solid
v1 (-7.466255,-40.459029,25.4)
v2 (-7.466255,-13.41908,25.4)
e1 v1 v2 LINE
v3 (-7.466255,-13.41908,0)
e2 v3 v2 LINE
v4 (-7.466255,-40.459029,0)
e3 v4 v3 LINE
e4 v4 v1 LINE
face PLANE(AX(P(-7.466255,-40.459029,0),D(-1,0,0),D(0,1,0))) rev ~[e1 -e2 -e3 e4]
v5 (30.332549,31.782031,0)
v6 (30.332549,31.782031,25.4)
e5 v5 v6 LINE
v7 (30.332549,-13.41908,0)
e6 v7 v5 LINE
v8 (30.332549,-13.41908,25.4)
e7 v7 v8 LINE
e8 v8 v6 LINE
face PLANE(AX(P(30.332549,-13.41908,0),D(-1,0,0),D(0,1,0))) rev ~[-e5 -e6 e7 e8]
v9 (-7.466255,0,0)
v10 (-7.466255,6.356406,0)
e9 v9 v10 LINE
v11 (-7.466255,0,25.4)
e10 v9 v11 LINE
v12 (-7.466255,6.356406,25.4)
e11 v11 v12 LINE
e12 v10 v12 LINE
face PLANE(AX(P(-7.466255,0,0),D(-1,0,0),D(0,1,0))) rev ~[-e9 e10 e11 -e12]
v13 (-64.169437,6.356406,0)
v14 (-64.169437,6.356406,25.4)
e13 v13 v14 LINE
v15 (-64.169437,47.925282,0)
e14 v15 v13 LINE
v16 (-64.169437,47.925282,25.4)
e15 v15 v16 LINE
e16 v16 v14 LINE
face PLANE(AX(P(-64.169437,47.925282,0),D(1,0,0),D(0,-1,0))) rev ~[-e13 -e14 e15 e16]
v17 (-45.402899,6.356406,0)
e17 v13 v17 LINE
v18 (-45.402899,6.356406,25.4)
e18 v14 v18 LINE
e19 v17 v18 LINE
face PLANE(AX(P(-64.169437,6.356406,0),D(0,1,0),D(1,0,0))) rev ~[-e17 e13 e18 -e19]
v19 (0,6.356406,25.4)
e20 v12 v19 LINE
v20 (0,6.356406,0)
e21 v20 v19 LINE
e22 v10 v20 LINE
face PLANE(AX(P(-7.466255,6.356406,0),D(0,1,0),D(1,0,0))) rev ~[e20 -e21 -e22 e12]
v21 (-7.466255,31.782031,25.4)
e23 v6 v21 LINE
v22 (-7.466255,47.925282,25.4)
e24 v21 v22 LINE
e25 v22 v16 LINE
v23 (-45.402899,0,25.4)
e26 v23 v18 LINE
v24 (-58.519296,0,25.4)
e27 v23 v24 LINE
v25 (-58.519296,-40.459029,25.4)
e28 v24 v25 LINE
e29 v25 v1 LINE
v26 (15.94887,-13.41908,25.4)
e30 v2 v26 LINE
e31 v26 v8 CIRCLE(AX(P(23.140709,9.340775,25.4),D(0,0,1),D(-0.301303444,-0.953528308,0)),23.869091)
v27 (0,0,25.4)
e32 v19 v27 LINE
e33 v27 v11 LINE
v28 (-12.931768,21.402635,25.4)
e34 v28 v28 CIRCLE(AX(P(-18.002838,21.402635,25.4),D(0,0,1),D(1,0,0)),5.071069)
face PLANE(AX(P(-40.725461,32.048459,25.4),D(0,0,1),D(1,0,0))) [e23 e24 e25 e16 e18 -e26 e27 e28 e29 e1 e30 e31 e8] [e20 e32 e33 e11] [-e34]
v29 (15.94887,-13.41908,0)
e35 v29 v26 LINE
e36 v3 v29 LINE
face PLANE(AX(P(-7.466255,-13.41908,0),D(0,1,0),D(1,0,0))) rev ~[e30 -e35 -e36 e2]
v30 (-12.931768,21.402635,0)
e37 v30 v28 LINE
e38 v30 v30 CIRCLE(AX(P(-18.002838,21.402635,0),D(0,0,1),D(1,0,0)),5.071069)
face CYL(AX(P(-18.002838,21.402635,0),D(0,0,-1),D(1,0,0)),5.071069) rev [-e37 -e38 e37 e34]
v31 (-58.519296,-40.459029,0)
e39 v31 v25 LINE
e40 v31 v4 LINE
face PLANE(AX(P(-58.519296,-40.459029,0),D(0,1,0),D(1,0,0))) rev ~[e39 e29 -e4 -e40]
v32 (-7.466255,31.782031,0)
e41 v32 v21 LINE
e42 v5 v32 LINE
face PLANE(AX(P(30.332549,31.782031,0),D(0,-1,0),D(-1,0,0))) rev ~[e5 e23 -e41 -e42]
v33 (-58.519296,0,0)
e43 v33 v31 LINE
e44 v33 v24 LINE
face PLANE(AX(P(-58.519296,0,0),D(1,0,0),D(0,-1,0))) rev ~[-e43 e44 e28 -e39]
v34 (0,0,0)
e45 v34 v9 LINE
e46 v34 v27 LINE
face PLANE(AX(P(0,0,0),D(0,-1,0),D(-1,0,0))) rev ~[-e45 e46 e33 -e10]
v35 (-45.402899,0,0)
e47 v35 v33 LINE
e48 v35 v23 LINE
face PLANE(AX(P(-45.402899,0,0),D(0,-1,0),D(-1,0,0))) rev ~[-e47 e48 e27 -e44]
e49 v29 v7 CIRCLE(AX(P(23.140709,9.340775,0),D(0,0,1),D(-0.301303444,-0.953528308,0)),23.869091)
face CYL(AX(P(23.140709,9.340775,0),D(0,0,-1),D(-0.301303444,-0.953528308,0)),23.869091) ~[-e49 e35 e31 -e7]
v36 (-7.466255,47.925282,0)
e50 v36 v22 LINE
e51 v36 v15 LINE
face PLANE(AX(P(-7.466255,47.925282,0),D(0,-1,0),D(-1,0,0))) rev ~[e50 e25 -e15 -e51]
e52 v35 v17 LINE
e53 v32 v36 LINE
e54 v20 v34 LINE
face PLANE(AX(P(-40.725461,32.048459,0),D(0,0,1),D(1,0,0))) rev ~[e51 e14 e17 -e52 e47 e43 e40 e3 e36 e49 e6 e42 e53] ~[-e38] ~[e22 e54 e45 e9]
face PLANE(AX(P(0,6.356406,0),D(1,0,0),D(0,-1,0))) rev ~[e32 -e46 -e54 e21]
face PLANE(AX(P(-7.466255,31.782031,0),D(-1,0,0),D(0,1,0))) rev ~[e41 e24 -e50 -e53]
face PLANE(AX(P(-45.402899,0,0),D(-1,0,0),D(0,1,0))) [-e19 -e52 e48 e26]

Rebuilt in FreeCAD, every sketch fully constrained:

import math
import FreeCAD as App
import Part
import Sketcher
Q = App.Units.Quantity

doc = App.newDocument("Part")
body = doc.addObject("PartDesign::Body", "Body")

sketch1 = doc.addObject("Sketcher::SketchObject", "Sketch")
body.addObject(sketch1)
sketch1.AttachmentSupport = (doc.XY_Plane, [""])
sketch1.MapMode = "FlatFace"
sketch1.addGeometry(Part.LineSegment(App.Vector(-7, 48, 0), App.Vector(-64, 48, 0)), False)
sketch1.addGeometry(Part.LineSegment(App.Vector(-64, 48, 0), App.Vector(-64, 6, 0)), False)
sketch1.addGeometry(Part.LineSegment(App.Vector(-64, 6, 0), App.Vector(-45, 6, 0)), False)
sketch1.addGeometry(Part.LineSegment(App.Vector(-45, 6, 0), App.Vector(-45, 0, 0)), False)
sketch1.addGeometry(Part.LineSegment(App.Vector(-45, 0, 0), App.Vector(-59, 0, 0)), False)
sketch1.addGeometry(Part.LineSegment(App.Vector(-59, 0, 0), App.Vector(-59, -40, 0)), False)
sketch1.addGeometry(Part.LineSegment(App.Vector(-59, -40, 0), App.Vector(-7, -40, 0)), False)
sketch1.addGeometry(Part.LineSegment(App.Vector(-7, -40, 0), App.Vector(-7, -13, 0)), False)
sketch1.addGeometry(Part.LineSegment(App.Vector(-7, -13, 0), App.Vector(16, -13, 0)), False)
sketch1.addGeometry(Part.ArcOfCircle(Part.Circle(App.Vector(23, 9, 0), App.Vector(0, 0, 1), 24), math.radians(-108), math.radians(-72)), False)
sketch1.addGeometry(Part.LineSegment(App.Vector(30, -13, 0), App.Vector(30, 32, 0)), False)
sketch1.addGeometry(Part.LineSegment(App.Vector(30, 32, 0), App.Vector(-7, 32, 0)), False)
sketch1.addGeometry(Part.LineSegment(App.Vector(-7, 32, 0), App.Vector(-7, 48, 0)), False)
sketch1.addGeometry(Part.LineSegment(App.Vector(-7, 0, 0), App.Vector(-7, 6, 0)), False)
sketch1.addGeometry(Part.LineSegment(App.Vector(-7, 6, 0), App.Vector(0, 6, 0)), False)
sketch1.addGeometry(Part.LineSegment(App.Vector(0, 6, 0), App.Vector(0, 0, 0)), False)
sketch1.addGeometry(Part.LineSegment(App.Vector(0, 0, 0), App.Vector(-7, 0, 0)), False)
sketch1.addGeometry(Part.Circle(App.Vector(-18, 21, 0), App.Vector(0, 0, 1), 5), False)
sketch1.addConstraint(Sketcher.Constraint("Coincident", 0, 2, 1, 1))
sketch1.addConstraint(Sketcher.Constraint("Coincident", 1, 2, 2, 1))
sketch1.addConstraint(Sketcher.Constraint("Coincident", 2, 2, 3, 1))
sketch1.addConstraint(Sketcher.Constraint("Coincident", 3, 2, 4, 1))
sketch1.addConstraint(Sketcher.Constraint("Coincident", 4, 2, 5, 1))
sketch1.addConstraint(Sketcher.Constraint("Coincident", 5, 2, 6, 1))
sketch1.addConstraint(Sketcher.Constraint("Coincident", 6, 2, 7, 1))
sketch1.addConstraint(Sketcher.Constraint("Coincident", 7, 2, 8, 1))
sketch1.addConstraint(Sketcher.Constraint("Coincident", 8, 2, 9, 1))
sketch1.addConstraint(Sketcher.Constraint("Coincident", 9, 2, 10, 1))
sketch1.addConstraint(Sketcher.Constraint("Coincident", 10, 2, 11, 1))
sketch1.addConstraint(Sketcher.Constraint("Coincident", 11, 2, 12, 1))
sketch1.addConstraint(Sketcher.Constraint("Coincident", 12, 2, 0, 1))
sketch1.addConstraint(Sketcher.Constraint("Coincident", 13, 2, 14, 1))
sketch1.addConstraint(Sketcher.Constraint("Coincident", 14, 2, 15, 1))
sketch1.addConstraint(Sketcher.Constraint("Coincident", 15, 2, 16, 1))
sketch1.addConstraint(Sketcher.Constraint("Coincident", 16, 2, 13, 1))
sketch1.addConstraint(Sketcher.Constraint("Horizontal", 0))
sketch1.addConstraint(Sketcher.Constraint("Vertical", 1))
sketch1.addConstraint(Sketcher.Constraint("Horizontal", 2))
sketch1.addConstraint(Sketcher.Constraint("Vertical", 3))
sketch1.addConstraint(Sketcher.Constraint("Horizontal", 4))
sketch1.addConstraint(Sketcher.Constraint("Vertical", 5))
sketch1.addConstraint(Sketcher.Constraint("Horizontal", 6))
sketch1.addConstraint(Sketcher.Constraint("Vertical", 7))
sketch1.addConstraint(Sketcher.Constraint("Horizontal", 8))
sketch1.addConstraint(Sketcher.Constraint("Vertical", 10))
sketch1.addConstraint(Sketcher.Constraint("Horizontal", 11))
sketch1.addConstraint(Sketcher.Constraint("Vertical", 12))
sketch1.addConstraint(Sketcher.Constraint("Vertical", 13))
sketch1.addConstraint(Sketcher.Constraint("Horizontal", 14))
sketch1.addConstraint(Sketcher.Constraint("Vertical", 15))
sketch1.addConstraint(Sketcher.Constraint("Horizontal", 16))
sketch1.addConstraint(Sketcher.Constraint("Coincident", 15, 2, -1, 1))
sketch1.addConstraint(Sketcher.Constraint("PointOnObject", 3, 2, -1))
sketch1.addConstraint(Sketcher.Constraint("Horizontal", 8, 2, 9, 2))
sketch1.addConstraint(Sketcher.Constraint("Horizontal", 2, 2, 13, 2))
sketch1.addConstraint(Sketcher.Constraint("Vertical", 7, 2, 11, 2))
sketch1.addConstraint(Sketcher.Constraint("Vertical", 12, 2, 13, 2))
sketch1.addConstraint(Sketcher.Constraint("Diameter", 17, 10.142139))
sketch1.addConstraint(Sketcher.Constraint("Radius", 9, 23.869091))
sketch1.addConstraint(Sketcher.Constraint("DistanceX", 0, 2, 0, 1, 56.703181))
sketch1.addConstraint(Sketcher.Constraint("DistanceX", 6, 1, 6, 2, 51.053041))
sketch1.addConstraint(Sketcher.Constraint("DistanceY", 5, 2, 5, 1, 40.459029))
sketch1.addConstraint(Sketcher.Constraint("DistanceY", 7, 1, 7, 2, 27.03995))
sketch1.addConstraint(Sketcher.Constraint("DistanceY", 10, 1, 10, 2, 45.201111))
sketch1.addConstraint(Sketcher.Constraint("DistanceY", 12, 1, 12, 2, 16.143251))
sketch1.addConstraint(Sketcher.Constraint("DistanceX", 2, 2, -1, 1, 45.402899))
sketch1.addConstraint(Sketcher.Constraint("DistanceX", 0, 2, 17, 3, 46.166599))
sketch1.addConstraint(Sketcher.Constraint("DistanceX", 2, 1, 2, 2, 18.766537))
sketch1.addConstraint(Sketcher.Constraint("DistanceX", 8, 1, 8, 2, 23.415125))
sketch1.addConstraint(Sketcher.Constraint("DistanceX", 11, 2, 11, 1, 37.798804))
sketch1.addConstraint(Sketcher.Constraint("DistanceY", 1, 2, 1, 1, 41.568876))
sketch1.addConstraint(Sketcher.Constraint("DistanceY", 9, 3, 17, 3, 12.06186))
pad1 = doc.addObject("PartDesign::Pad", "Pad")
body.addObject(pad1)
pad1.Profile = sketch1
pad1.Length = Q("1 in")

sketch2 = doc.addObject("Sketcher::SketchObject", "Sketch001")
body.addObject(sketch2)
sketch2.AttachmentSupport = (doc.XY_Plane, [""])
sketch2.MapMode = "FlatFace"
sketch2.addGeometry(Part.LineSegment(App.Vector(-7, 48, 0), App.Vector(-64, 48, 0)), False)
sketch2.addGeometry(Part.LineSegment(App.Vector(-64, 48, 0), App.Vector(-64, 6, 0)), False)
sketch2.addGeometry(Part.LineSegment(App.Vector(-64, 6, 0), App.Vector(-45, 6, 0)), False)
sketch2.addGeometry(Part.LineSegment(App.Vector(-45, 6, 0), App.Vector(-45, 0, 0)), False)
sketch2.addGeometry(Part.LineSegment(App.Vector(-45, 0, 0), App.Vector(-59, 0, 0)), False)
sketch2.addGeometry(Part.LineSegment(App.Vector(-59, 0, 0), App.Vector(-59, -40, 0)), False)
sketch2.addGeometry(Part.LineSegment(App.Vector(-59, -40, 0), App.Vector(-7, -40, 0)), False)
sketch2.addGeometry(Part.LineSegment(App.Vector(-7, -40, 0), App.Vector(-7, -13, 0)), False)
sketch2.addGeometry(Part.LineSegment(App.Vector(-7, -13, 0), App.Vector(16, -13, 0)), False)
sketch2.addGeometry(Part.ArcOfCircle(Part.Circle(App.Vector(23, 9, 0), App.Vector(0, 0, 1), 24), math.radians(-108), math.radians(-72)), False)
sketch2.addGeometry(Part.LineSegment(App.Vector(30, -13, 0), App.Vector(30, 32, 0)), False)
sketch2.addGeometry(Part.LineSegment(App.Vector(30, 32, 0), App.Vector(-7, 32, 0)), False)
sketch2.addGeometry(Part.LineSegment(App.Vector(-7, 32, 0), App.Vector(-7, 48, 0)), False)
sketch2.addGeometry(Part.LineSegment(App.Vector(-7, 0, 0), App.Vector(-7, 6, 0)), False)
sketch2.addGeometry(Part.LineSegment(App.Vector(-7, 6, 0), App.Vector(0, 6, 0)), False)
sketch2.addGeometry(Part.LineSegment(App.Vector(0, 6, 0), App.Vector(0, 0, 0)), False)
sketch2.addGeometry(Part.LineSegment(App.Vector(0, 0, 0), App.Vector(-7, 0, 0)), False)
sketch2.addGeometry(Part.Circle(App.Vector(-18, 21, 0), App.Vector(0, 0, 1), 5), False)
sketch2.addConstraint(Sketcher.Constraint("Coincident", 0, 2, 1, 1))
sketch2.addConstraint(Sketcher.Constraint("Coincident", 1, 2, 2, 1))
sketch2.addConstraint(Sketcher.Constraint("Coincident", 2, 2, 3, 1))
sketch2.addConstraint(Sketcher.Constraint("Coincident", 3, 2, 4, 1))
sketch2.addConstraint(Sketcher.Constraint("Coincident", 4, 2, 5, 1))
sketch2.addConstraint(Sketcher.Constraint("Coincident", 5, 2, 6, 1))
sketch2.addConstraint(Sketcher.Constraint("Coincident", 6, 2, 7, 1))
sketch2.addConstraint(Sketcher.Constraint("Coincident", 7, 2, 8, 1))
sketch2.addConstraint(Sketcher.Constraint("Coincident", 8, 2, 9, 1))
sketch2.addConstraint(Sketcher.Constraint("Coincident", 9, 2, 10, 1))
sketch2.addConstraint(Sketcher.Constraint("Coincident", 10, 2, 11, 1))
sketch2.addConstraint(Sketcher.Constraint("Coincident", 11, 2, 12, 1))
sketch2.addConstraint(Sketcher.Constraint("Coincident", 12, 2, 0, 1))
sketch2.addConstraint(Sketcher.Constraint("Coincident", 13, 2, 14, 1))
sketch2.addConstraint(Sketcher.Constraint("Coincident", 14, 2, 15, 1))
sketch2.addConstraint(Sketcher.Constraint("Coincident", 15, 2, 16, 1))
sketch2.addConstraint(Sketcher.Constraint("Coincident", 16, 2, 13, 1))
sketch2.addConstraint(Sketcher.Constraint("Horizontal", 0))
sketch2.addConstraint(Sketcher.Constraint("Vertical", 1))
sketch2.addConstraint(Sketcher.Constraint("Horizontal", 2))
sketch2.addConstraint(Sketcher.Constraint("Vertical", 3))
sketch2.addConstraint(Sketcher.Constraint("Horizontal", 4))
sketch2.addConstraint(Sketcher.Constraint("Vertical", 5))
sketch2.addConstraint(Sketcher.Constraint("Horizontal", 6))
sketch2.addConstraint(Sketcher.Constraint("Vertical", 7))
sketch2.addConstraint(Sketcher.Constraint("Horizontal", 8))
sketch2.addConstraint(Sketcher.Constraint("Vertical", 10))
sketch2.addConstraint(Sketcher.Constraint("Horizontal", 11))
sketch2.addConstraint(Sketcher.Constraint("Vertical", 12))
sketch2.addConstraint(Sketcher.Constraint("Vertical", 13))
sketch2.addConstraint(Sketcher.Constraint("Horizontal", 14))
sketch2.addConstraint(Sketcher.Constraint("Vertical", 15))
sketch2.addConstraint(Sketcher.Constraint("Horizontal", 16))
sketch2.addConstraint(Sketcher.Constraint("Coincident", 15, 2, -1, 1))
sketch2.addConstraint(Sketcher.Constraint("PointOnObject", 3, 2, -1))
sketch2.addConstraint(Sketcher.Constraint("Horizontal", 8, 2, 9, 2))
sketch2.addConstraint(Sketcher.Constraint("Horizontal", 2, 2, 13, 2))
sketch2.addConstraint(Sketcher.Constraint("Vertical", 7, 2, 11, 2))
sketch2.addConstraint(Sketcher.Constraint("Vertical", 12, 2, 13, 2))
sketch2.addConstraint(Sketcher.Constraint("Diameter", 17, 10.142139))
sketch2.addConstraint(Sketcher.Constraint("Radius", 9, 23.869091))
sketch2.addConstraint(Sketcher.Constraint("DistanceX", 0, 2, 0, 1, 56.703181))
sketch2.addConstraint(Sketcher.Constraint("DistanceX", 6, 1, 6, 2, 51.053041))
sketch2.addConstraint(Sketcher.Constraint("DistanceY", 5, 2, 5, 1, 40.459029))
sketch2.addConstraint(Sketcher.Constraint("DistanceY", 7, 1, 7, 2, 27.03995))
sketch2.addConstraint(Sketcher.Constraint("DistanceY", 10, 1, 10, 2, 45.201111))
sketch2.addConstraint(Sketcher.Constraint("DistanceY", 12, 1, 12, 2, 16.143251))
sketch2.addConstraint(Sketcher.Constraint("DistanceX", 2, 2, -1, 1, 45.402899))
sketch2.addConstraint(Sketcher.Constraint("DistanceX", 0, 2, 17, 3, 46.166599))
sketch2.addConstraint(Sketcher.Constraint("DistanceX", 2, 1, 2, 2, 18.766537))
sketch2.addConstraint(Sketcher.Constraint("DistanceX", 8, 1, 8, 2, 23.415125))
sketch2.addConstraint(Sketcher.Constraint("DistanceX", 11, 2, 11, 1, 37.798804))
sketch2.addConstraint(Sketcher.Constraint("DistanceY", 1, 2, 1, 1, 41.568876))
sketch2.addConstraint(Sketcher.Constraint("DistanceY", 9, 3, 17, 3, 12.06186))
pad2 = doc.addObject("PartDesign::Pad", "Pad001")
body.addObject(pad2)
pad2.Profile = sketch2
pad2.Length = Q("1 in")

doc.recompute()
